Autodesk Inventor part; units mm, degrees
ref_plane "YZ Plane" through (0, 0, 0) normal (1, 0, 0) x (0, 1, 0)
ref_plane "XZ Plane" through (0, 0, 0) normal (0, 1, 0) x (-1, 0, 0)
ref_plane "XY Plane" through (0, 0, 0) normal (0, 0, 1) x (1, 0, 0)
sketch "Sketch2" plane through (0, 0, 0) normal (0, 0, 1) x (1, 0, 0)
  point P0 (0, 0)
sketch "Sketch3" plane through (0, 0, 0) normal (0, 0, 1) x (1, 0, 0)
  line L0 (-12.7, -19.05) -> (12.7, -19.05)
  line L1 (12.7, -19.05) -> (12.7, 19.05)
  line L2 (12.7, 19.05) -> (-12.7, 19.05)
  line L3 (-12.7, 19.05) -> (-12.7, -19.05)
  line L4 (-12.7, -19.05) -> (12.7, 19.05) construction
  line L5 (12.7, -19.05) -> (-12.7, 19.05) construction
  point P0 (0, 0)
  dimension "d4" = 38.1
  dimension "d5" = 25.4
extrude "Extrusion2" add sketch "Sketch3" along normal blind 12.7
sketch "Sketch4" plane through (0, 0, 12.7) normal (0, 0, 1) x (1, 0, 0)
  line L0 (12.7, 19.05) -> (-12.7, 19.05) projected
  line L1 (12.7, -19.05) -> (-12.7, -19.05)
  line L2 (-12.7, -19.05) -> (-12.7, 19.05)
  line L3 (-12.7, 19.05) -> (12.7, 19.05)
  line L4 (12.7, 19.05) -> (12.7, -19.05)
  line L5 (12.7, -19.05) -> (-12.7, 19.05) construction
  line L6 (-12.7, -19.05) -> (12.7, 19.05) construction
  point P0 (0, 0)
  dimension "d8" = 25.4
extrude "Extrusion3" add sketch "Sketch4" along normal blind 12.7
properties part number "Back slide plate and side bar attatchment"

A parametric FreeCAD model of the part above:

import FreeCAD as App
import Part
import Sketcher

V = App.Vector
Q = App.Units.Quantity

doc = App.newDocument("Part")
body = doc.addObject("PartDesign::Body", "Body")

# Sketch on XY plane
sketch1 = body.newObject("Sketcher::SketchObject", "Sketch")
sketch1.AttachmentSupport = (doc.getObject("XY_Plane"), [""])
sketch1.MapMode = "FlatFace"
sketch1.addGeometry([
    Part.LineSegment(V(-12.7, 19.05, 0), V(-12.7, -19.05, 0)),
    Part.LineSegment(V(-12.7, -19.05, 0), V(12.7, -19.05, 0)),
    Part.LineSegment(V(12.7, -19.05, 0), V(12.7, 19.05, 0)),
    Part.LineSegment(V(12.7, 19.05, 0), V(-12.7, 19.05, 0)),
], False)
sketch1.addConstraint([
    Sketcher.Constraint("Coincident", 0, 2, 1, 1),
    Sketcher.Constraint("Coincident", 1, 2, 2, 1),
    Sketcher.Constraint("Coincident", 2, 2, 3, 1),
    Sketcher.Constraint("Coincident", 3, 2, 0, 1),
    Sketcher.Constraint("Vertical", 0),
    Sketcher.Constraint("Horizontal", 1),
    Sketcher.Constraint("Vertical", 2),
    Sketcher.Constraint("Horizontal", 3),
    Sketcher.Constraint("Symmetric", 0, 2, 2, 2, -1, 1),
    Sketcher.Constraint("DistanceX", 1, 1, 1, 2, Q("1 in")),
    Sketcher.Constraint("DistanceY", 0, 2, 0, 1, Q("1.5 in")),
])
pad1 = body.newObject("PartDesign::Pad", "Pad")
pad1.Profile = sketch1
pad1.Length = Q("0.5 in")

# Sketch on XY plane
sketch2 = body.newObject("Sketcher::SketchObject", "Sketch001")
sketch2.AttachmentSupport = (doc.getObject("XY_Plane"), [""])
sketch2.MapMode = "FlatFace"
sketch2.AttachmentOffset = App.Placement(V(0, 0, 0.5 * 25.4), App.Rotation())
sketch2.addGeometry([
    Part.LineSegment(V(12.7, -19.05, 0), V(12.7, 19.05, 0)),
    Part.LineSegment(V(12.7, 19.05, 0), V(-12.7, 19.05, 0)),
    Part.LineSegment(V(-12.7, 19.05, 0), V(-12.7, -19.05, 0)),
    Part.LineSegment(V(-12.7, -19.05, 0), V(12.7, -19.05, 0)),
], False)
sketch2.addConstraint([
    Sketcher.Constraint("Coincident", 0, 2, 1, 1),
    Sketcher.Constraint("Coincident", 1, 2, 2, 1),
    Sketcher.Constraint("Coincident", 2, 2, 3, 1),
    Sketcher.Constraint("Coincident", 3, 2, 0, 1),
    Sketcher.Constraint("Vertical", 0),
    Sketcher.Constraint("Horizontal", 1),
    Sketcher.Constraint("Vertical", 2),
    Sketcher.Constraint("Horizontal", 3),
    Sketcher.Constraint("Symmetric", 0, 2, 2, 2, -1, 1),
    Sketcher.Constraint("DistanceX", 1, 2, 1, 1, Q("1 in")),
    Sketcher.Constraint("DistanceY", 0, 1, 0, 2, Q("1.5 in")),
])
pad2 = body.newObject("PartDesign::Pad", "Pad001")
pad2.Profile = sketch2
pad2.Length = Q("0.5 in")

doc.recompute()
